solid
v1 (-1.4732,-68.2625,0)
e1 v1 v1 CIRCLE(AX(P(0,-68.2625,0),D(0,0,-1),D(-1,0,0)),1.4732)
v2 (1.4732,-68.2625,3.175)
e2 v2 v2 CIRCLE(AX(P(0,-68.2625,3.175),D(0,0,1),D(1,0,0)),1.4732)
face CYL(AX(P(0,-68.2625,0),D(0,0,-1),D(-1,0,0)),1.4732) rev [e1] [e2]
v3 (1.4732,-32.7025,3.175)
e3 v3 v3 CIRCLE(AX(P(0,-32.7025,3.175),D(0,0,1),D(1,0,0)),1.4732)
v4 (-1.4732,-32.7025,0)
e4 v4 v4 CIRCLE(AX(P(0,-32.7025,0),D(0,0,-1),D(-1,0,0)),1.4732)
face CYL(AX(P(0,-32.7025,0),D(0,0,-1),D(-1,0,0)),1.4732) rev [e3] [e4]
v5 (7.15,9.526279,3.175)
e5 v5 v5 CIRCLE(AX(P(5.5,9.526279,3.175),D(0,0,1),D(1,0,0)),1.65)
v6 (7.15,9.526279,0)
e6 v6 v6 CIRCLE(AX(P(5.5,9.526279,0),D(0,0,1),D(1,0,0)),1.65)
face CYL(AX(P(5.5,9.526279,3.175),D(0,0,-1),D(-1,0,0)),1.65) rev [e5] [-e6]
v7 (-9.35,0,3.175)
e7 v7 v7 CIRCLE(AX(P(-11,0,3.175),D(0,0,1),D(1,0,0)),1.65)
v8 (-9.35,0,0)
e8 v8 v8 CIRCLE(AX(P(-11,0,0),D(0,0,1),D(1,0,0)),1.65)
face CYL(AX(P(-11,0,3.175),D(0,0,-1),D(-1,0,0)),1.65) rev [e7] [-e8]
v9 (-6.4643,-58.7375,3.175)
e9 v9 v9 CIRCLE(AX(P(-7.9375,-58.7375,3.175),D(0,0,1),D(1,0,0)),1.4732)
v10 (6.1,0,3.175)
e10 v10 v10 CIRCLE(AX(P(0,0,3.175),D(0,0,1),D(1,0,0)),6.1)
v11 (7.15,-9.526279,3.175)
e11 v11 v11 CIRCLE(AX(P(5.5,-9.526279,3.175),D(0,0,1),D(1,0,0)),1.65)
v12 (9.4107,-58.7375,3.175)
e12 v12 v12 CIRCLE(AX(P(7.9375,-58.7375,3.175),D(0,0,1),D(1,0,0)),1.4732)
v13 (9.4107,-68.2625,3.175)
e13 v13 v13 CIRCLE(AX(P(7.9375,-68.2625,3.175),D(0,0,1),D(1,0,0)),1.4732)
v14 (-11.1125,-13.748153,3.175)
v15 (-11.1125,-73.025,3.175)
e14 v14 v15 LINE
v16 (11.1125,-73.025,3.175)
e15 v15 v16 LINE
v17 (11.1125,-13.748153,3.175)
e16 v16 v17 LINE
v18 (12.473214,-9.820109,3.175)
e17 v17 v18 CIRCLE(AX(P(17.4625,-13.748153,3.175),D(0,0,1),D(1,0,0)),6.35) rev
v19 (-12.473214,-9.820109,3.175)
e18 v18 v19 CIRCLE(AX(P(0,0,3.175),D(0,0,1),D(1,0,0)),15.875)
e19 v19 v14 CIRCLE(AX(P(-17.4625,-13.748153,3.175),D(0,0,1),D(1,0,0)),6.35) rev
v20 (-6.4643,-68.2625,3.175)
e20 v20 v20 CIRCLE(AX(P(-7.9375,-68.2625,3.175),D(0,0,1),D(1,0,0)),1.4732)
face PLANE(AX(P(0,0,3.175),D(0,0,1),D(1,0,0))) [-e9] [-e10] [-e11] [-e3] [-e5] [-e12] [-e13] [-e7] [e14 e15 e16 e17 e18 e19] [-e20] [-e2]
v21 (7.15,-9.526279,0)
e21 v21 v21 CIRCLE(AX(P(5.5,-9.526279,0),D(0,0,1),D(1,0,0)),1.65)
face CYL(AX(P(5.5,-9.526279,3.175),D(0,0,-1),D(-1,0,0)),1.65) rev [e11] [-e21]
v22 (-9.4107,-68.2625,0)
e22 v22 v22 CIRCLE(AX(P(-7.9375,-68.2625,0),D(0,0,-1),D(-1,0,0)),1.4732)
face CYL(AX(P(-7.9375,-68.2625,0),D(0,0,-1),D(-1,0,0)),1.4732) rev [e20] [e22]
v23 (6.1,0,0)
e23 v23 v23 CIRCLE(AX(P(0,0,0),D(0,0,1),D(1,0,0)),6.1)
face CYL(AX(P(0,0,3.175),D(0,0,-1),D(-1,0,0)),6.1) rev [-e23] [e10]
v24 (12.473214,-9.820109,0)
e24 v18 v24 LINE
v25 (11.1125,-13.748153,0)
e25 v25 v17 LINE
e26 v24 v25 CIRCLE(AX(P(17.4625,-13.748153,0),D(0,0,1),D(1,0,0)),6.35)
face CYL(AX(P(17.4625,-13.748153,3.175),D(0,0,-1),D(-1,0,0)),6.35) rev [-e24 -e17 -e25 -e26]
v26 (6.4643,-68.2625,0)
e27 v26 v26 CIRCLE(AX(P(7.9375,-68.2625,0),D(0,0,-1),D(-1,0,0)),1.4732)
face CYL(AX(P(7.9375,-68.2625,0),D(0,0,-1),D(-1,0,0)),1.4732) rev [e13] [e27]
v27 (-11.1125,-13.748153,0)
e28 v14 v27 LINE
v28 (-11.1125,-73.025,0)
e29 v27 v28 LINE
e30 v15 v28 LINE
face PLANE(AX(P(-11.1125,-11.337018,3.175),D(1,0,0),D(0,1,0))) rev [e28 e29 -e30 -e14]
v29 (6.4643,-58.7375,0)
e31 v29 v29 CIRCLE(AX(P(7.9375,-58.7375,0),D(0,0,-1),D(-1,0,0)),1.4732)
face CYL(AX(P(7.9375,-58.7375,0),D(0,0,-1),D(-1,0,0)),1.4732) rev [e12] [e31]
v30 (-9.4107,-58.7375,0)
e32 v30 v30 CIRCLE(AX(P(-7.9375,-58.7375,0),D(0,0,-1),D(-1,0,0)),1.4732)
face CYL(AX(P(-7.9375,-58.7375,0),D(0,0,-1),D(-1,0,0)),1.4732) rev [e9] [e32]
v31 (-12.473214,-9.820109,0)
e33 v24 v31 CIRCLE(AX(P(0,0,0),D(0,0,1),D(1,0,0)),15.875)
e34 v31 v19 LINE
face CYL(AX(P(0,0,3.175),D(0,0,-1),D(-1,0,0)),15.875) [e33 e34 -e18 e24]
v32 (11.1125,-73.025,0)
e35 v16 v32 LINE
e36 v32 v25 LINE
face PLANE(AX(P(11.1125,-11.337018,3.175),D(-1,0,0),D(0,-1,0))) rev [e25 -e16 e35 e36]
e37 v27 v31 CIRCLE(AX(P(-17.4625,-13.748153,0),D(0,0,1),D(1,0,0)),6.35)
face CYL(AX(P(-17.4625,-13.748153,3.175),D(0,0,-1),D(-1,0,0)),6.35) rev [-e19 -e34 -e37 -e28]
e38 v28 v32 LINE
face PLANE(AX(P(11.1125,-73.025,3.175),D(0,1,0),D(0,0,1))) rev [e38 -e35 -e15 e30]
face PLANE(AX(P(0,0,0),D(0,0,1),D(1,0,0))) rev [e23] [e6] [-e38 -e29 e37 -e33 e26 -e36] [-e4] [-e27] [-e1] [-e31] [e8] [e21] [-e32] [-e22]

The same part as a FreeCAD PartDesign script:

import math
import FreeCAD as App
import Part
import Sketcher

V = App.Vector
Q = App.Units.Quantity


def edges_at(feature, points):
    """Names of the edges that pass closest to the given points."""
    edges = feature.Shape.Edges
    near = lambda p: min(range(len(edges)), key=lambda i: edges[i].distToShape(Part.Vertex(*p))[0])
    return sorted({f"Edge{near(p) + 1}" for p in points})

doc = App.newDocument("Part")
params = doc.addObject("Spreadsheet::Sheet", "Params")
for row, (alias, value) in enumerate([
    ("sketch1_radius", "0.625 in"),
    ("sketch1_width", "0.875 in"),
    ("pad1_length", "0.125 in"),
    ("sketch2_diameter", "0.116 in"),
    ("hole_diameter", "0.116 in"),
    ("hole_depth", "0.39 in"),
    ("sketch3_diameter", "0.116 in"),
    ("hole2_diameter", "0.116 in"),
    ("fillet_radius", "0.25 in"),
], start=1):
    params.set(f"A{row}", alias)
    params.set(f"B{row}", "=" + value)
    params.setAlias(f"B{row}", alias)

body = doc.addObject("PartDesign::Body", "Body")

# Sketch on XY plane
sketch1 = body.newObject("Sketcher::SketchObject", "Sketch")
sketch1.AttachmentSupport = (doc.getObject("XY_Plane"), [""])
sketch1.MapMode = "FlatFace"
sketch1.addGeometry(Part.LineSegment(V(-11.1125, -11.337018, 0), V(-11.1125, -73.025, 0)), False)
sketch1.addGeometry(Part.LineSegment(V(-11.1125, -73.025, 0), V(11.1125, -73.025, 0)), False)
sketch1.addGeometry(Part.LineSegment(V(11.1125, -73.025, 0), V(11.1125, -11.337018, 0)), False)
sketch1.addGeometry(Part.ArcOfCircle(Part.Circle(V(0, 0, 0), V(0, 0, 1), 15.875), math.radians(-45.572996), math.radians(225.572996)), False)
sketch1.addGeometry(Part.Circle(V(5.5, -9.526279, 0), V(0, 0, 1), 1.65), False)
sketch1.addGeometry(Part.Circle(V(-11, 0, 0), V(0, 0, 1), 1.65), False)
sketch1.addGeometry(Part.Circle(V(0, 0, 0), V(0, 0, 1), 6.1), False)
sketch1.addGeometry(Part.Circle(V(5.5, 9.526279, 0), V(0, 0, 1), 1.65), False)
sketch1.addConstraint(Sketcher.Constraint("Coincident", 0, 2, 1, 1))
sketch1.addConstraint(Sketcher.Constraint("Coincident", 1, 2, 2, 1))
sketch1.addConstraint(Sketcher.Constraint("Coincident", 2, 2, 3, 1))
sketch1.addConstraint(Sketcher.Constraint("Coincident", 3, 2, 0, 1))
sketch1.addConstraint(Sketcher.Constraint("Vertical", 0))
sketch1.addConstraint(Sketcher.Constraint("Horizontal", 1))
sketch1.addConstraint(Sketcher.Constraint("Vertical", 2))
sketch1.addConstraint(Sketcher.Constraint("Coincident", 3, 3, -1, 1))
sketch1.addConstraint(Sketcher.Constraint("Coincident", 6, 3, -1, 1))
sketch1.addConstraint(Sketcher.Constraint("Equal", 4, 5))
sketch1.addConstraint(Sketcher.Constraint("Equal", 5, 7))
sketch1.addConstraint(Sketcher.Constraint("Symmetric", 4, 3, 7, 3, -1))
sketch1.addConstraint(Sketcher.Constraint("PointOnObject", 5, 3, -1))
sketch1.addConstraint(Sketcher.Constraint("Horizontal", 2, 2, 3, 2))
sketch1.addConstraint(Sketcher.Constraint("Radius", 3, Q("0.625 in")))
sketch1.addConstraint(Sketcher.Constraint("Diameter", 4, 3.3))
sketch1.addConstraint(Sketcher.Constraint("Diameter", 6, 12.2))
sketch1.addConstraint(Sketcher.Constraint("DistanceX", 1, 1, 1, 2, Q("0.875 in")))
sketch1.addConstraint(Sketcher.Constraint("DistanceY", 0, 2, -1, 1, Q("2.875 in")))
sketch1.addConstraint(Sketcher.Constraint("DistanceX", -1, 1, 4, 3, 5.5))
sketch1.addConstraint(Sketcher.Constraint("DistanceX", 5, 3, -1, 1, 11.0))
sketch1.addConstraint(Sketcher.Constraint("DistanceY", 4, 3, -1, 1, 9.526279))
sketch1.setExpression("Constraints[14]", "Params.sketch1_radius")
sketch1.setExpression("Constraints[17]", "Params.sketch1_width")
pad1 = body.newObject("PartDesign::Pad", "Pad")
pad1.Profile = sketch1
pad1.setExpression("Length", "Params.pad1_length")

# Sketch on XY plane
sketch2 = body.newObject("Sketcher::SketchObject", "Sketch001")
sketch2.AttachmentSupport = (doc.getObject("XY_Plane"), [""])
sketch2.MapMode = "FlatFace"
sketch2.addGeometry(Part.Circle(V(-7.9375, -68.2625, 0), V(0, 0, 1), 1.4732), False)
sketch2.addGeometry(Part.Circle(V(7.9375, -68.2625, 0), V(0, 0, 1), 1.4732), False)
sketch2.addGeometry(Part.Circle(V(7.9375, -58.7375, 0), V(0, 0, 1), 1.4732), False)
sketch2.addGeometry(Part.Circle(V(-7.9375, -58.7375, 0), V(0, 0, 1), 1.4732), False)
sketch2.addConstraint(Sketcher.Constraint("Equal", 0, 1))
sketch2.addConstraint(Sketcher.Constraint("Equal", 1, 2))
sketch2.addConstraint(Sketcher.Constraint("Equal", 2, 3))
sketch2.addConstraint(Sketcher.Constraint("Symmetric", 0, 3, 1, 3, -2))
sketch2.addConstraint(Sketcher.Constraint("Symmetric", 2, 3, 3, 3, -2))
sketch2.addConstraint(Sketcher.Constraint("Vertical", 1, 3, 2, 3))
sketch2.addConstraint(Sketcher.Constraint("Diameter", 0, Q("0.116 in")))
sketch2.addConstraint(Sketcher.Constraint("DistanceX", 0, 3, -1, 1, Q("0.3125 in")))
sketch2.addConstraint(Sketcher.Constraint("DistanceY", 0, 3, -1, 1, Q("2.6875 in")))
sketch2.addConstraint(Sketcher.Constraint("DistanceY", 2, 3, -1, 1, Q("2.3125 in")))
sketch2.setExpression("Constraints[6]", "Params.sketch2_diameter")
doc.recompute()
hole = body.newObject("PartDesign::Hole", "Hole")
hole.Profile = sketch2
hole.ThreadType = "None"
hole.setExpression("Diameter", "Params.hole_diameter")
hole.DepthType = "Dimension"
hole.setExpression("Depth", "Params.hole_depth")
hole.DrillPoint = "Angled"
hole.DrillPointAngle = 118
hole.Reversed = True

# Sketch on XY plane
sketch3 = body.newObject("Sketcher::SketchObject", "Sketch002")
sketch3.AttachmentSupport = (doc.getObject("XY_Plane"), [""])
sketch3.MapMode = "FlatFace"
sketch3.addGeometry(Part.Circle(V(0, -68.2625, 0), V(0, 0, 1), 1.4732), False)
sketch3.addGeometry(Part.Circle(V(0, -32.7025, 0), V(0, 0, 1), 1.4732), False)
sketch3.addConstraint(Sketcher.Constraint("Equal", 0, 1))
sketch3.addConstraint(Sketcher.Constraint("PointOnObject", 0, 3, -2))
sketch3.addConstraint(Sketcher.Constraint("PointOnObject", 1, 3, -2))
sketch3.addConstraint(Sketcher.Constraint("Diameter", 0, Q("0.116 in")))
sketch3.addConstraint(Sketcher.Constraint("DistanceY", 0, 3, 1, 3, Q("1.4 in")))
sketch3.addConstraint(Sketcher.Constraint("DistanceY", 0, 3, -1, 1, Q("2.6875 in")))
sketch3.setExpression("Constraints[3]", "Params.sketch3_diameter")
doc.recompute()
hole2 = body.newObject("PartDesign::Hole", "Hole001")
hole2.Profile = sketch3
hole2.ThreadType = "None"
hole2.setExpression("Diameter", "Params.hole2_diameter")
hole2.DepthType = "ThroughAll"
hole2.Reversed = True
doc.recompute()

fillet = body.newObject("PartDesign::Fillet", "Fillet")
fillet.Base = (hole2, edges_at(hole2, [(11.113, -11.337, 1.587), (-11.113, -11.337, 1.587)]))
fillet.setExpression("Radius", "Params.fillet_radius")

doc.recompute()
